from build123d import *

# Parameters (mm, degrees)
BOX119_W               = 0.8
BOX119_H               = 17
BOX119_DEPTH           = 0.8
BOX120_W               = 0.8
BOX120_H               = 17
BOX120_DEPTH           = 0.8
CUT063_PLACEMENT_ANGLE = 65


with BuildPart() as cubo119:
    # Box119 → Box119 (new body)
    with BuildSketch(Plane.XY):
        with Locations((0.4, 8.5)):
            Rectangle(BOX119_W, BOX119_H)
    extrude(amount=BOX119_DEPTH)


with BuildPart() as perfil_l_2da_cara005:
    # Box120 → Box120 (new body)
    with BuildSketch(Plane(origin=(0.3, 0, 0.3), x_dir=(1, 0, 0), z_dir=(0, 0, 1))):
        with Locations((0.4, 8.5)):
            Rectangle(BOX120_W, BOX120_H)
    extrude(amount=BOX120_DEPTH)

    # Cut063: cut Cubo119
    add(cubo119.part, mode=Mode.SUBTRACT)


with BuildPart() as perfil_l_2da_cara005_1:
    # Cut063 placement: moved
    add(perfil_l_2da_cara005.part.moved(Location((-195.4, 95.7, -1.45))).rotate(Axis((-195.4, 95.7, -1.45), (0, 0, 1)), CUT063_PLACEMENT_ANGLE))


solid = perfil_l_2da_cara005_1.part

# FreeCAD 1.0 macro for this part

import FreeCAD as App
import Part
import Sketcher

V = App.Vector
Q = App.Units.Quantity

doc = App.newDocument("Part")
params = doc.addObject("Spreadsheet::Sheet", "Params")
for row, (alias, value) in enumerate([
    ("sketch1_height", "17 mm"),
    ("sketch1_width", "0.8 mm"),
    ("pad1_length", "0.8 mm"),
    ("sketch2_height", "17 mm"),
    ("sketch2_width", "0.8 mm"),
    ("pad2_length", "0.8 mm"),
], start=1):
    params.set(f"A{row}", alias)
    params.set(f"B{row}", "=" + value)
    params.setAlias(f"B{row}", alias)

body = doc.addObject("PartDesign::Body", "Body")

# Sketch on XY plane
sketch1 = body.newObject("Sketcher::SketchObject", "Sketch")
sketch1.AttachmentSupport = (doc.getObject("XY_Plane"), [""])
sketch1.MapMode = "FlatFace"
sketch1.addGeometry(Part.LineSegment(V(0, 17, 0), V(0, 0, 0)), False)
sketch1.addGeometry(Part.LineSegment(V(0, 0, 0), V(0.8, 0, 0)), False)
sketch1.addGeometry(Part.LineSegment(V(0.8, 0, 0), V(0.8, 17, 0)), False)
sketch1.addGeometry(Part.LineSegment(V(0.8, 17, 0), V(0, 17, 0)), False)
sketch1.addConstraint(Sketcher.Constraint("Coincident", 0, 2, 1, 1))
sketch1.addConstraint(Sketcher.Constraint("Coincident", 1, 2, 2, 1))
sketch1.addConstraint(Sketcher.Constraint("Coincident", 2, 2, 3, 1))
sketch1.addConstraint(Sketcher.Constraint("Coincident", 3, 2, 0, 1))
sketch1.addConstraint(Sketcher.Constraint("Vertical", 0))
sketch1.addConstraint(Sketcher.Constraint("Horizontal", 1))
sketch1.addConstraint(Sketcher.Constraint("Vertical", 2))
sketch1.addConstraint(Sketcher.Constraint("Horizontal", 3))
sketch1.addConstraint(Sketcher.Constraint("Coincident", 0, 2, -1, 1))
sketch1.addConstraint(Sketcher.Constraint("DistanceY", 0, 2, 0, 1, Q("17 mm")))
sketch1.addConstraint(Sketcher.Constraint("DistanceX", 1, 1, 1, 2, Q("0.8 mm")))
sketch1.setExpression("Constraints[9]", "Params.sketch1_height")
sketch1.setExpression("Constraints[10]", "Params.sketch1_width")
pad1 = body.newObject("PartDesign::Pad", "Pad")
pad1.Profile = sketch1
pad1.setExpression("Length", "Params.pad1_length")
body2 = doc.addObject("PartDesign::Body", "Body001")

# Sketch on XY plane
sketch2 = body2.newObject("Sketcher::SketchObject", "Sketch001")
sketch2.AttachmentSupport = (doc.getObject("XY_Plane001"), [""])
sketch2.MapMode = "FlatFace"
sketch2.AttachmentOffset = App.Placement(V(0, 0, 0.3), App.Rotation())
sketch2.addGeometry(Part.LineSegment(V(0.3, 17, 0), V(0.3, 0, 0)), False)
sketch2.addGeometry(Part.LineSegment(V(0.3, 0, 0), V(1.1, 0, 0)), False)
sketch2.addGeometry(Part.LineSegment(V(1.1, 0, 0), V(1.1, 17, 0)), False)
sketch2.addGeometry(Part.LineSegment(V(1.1, 17, 0), V(0.3, 17, 0)), False)
sketch2.addConstraint(Sketcher.Constraint("Coincident", 0, 2, 1, 1))
sketch2.addConstraint(Sketcher.Constraint("Coincident", 1, 2, 2, 1))
sketch2.addConstraint(Sketcher.Constraint("Coincident", 2, 2, 3, 1))
sketch2.addConstraint(Sketcher.Constraint("Coincident", 3, 2, 0, 1))
sketch2.addConstraint(Sketcher.Constraint("Vertical", 0))
sketch2.addConstraint(Sketcher.Constraint("Horizontal", 1))
sketch2.addConstraint(Sketcher.Constraint("Vertical", 2))
sketch2.addConstraint(Sketcher.Constraint("Horizontal", 3))
sketch2.addConstraint(Sketcher.Constraint("PointOnObject", 0, 2, -1))
sketch2.addConstraint(Sketcher.Constraint("DistanceY", 0, 2, 0, 1, Q("17 mm")))
sketch2.addConstraint(Sketcher.Constraint("DistanceX", 1, 1, 1, 2, Q("0.8 mm")))
sketch2.addConstraint(Sketcher.Constraint("DistanceX", -1, 1, 0, 2, Q("0.3 mm")))
sketch2.setExpression("Constraints[9]", "Params.sketch2_height")
sketch2.setExpression("Constraints[10]", "Params.sketch2_width")
pad2 = body2.newObject("PartDesign::Pad", "Pad001")
pad2.Profile = sketch2
pad2.setExpression("Length", "Params.pad2_length")
doc.recompute()

boolean = body2.newObject("PartDesign::Boolean", "Boolean")
boolean.Type = "Cut"
boolean.addObjects([body])
body3 = doc.addObject("PartDesign::Body", "Body002")
doc.recompute()

body2.Placement = App.Placement(V(-195.4, 95.7, -1.45), App.Rotation(V(0, 0, 1), 65))
boolean2 = body3.newObject("PartDesign::Boolean", "Boolean001")
boolean2.Type = "Fuse"
boolean2.addObjects([body2])

doc.recompute()
